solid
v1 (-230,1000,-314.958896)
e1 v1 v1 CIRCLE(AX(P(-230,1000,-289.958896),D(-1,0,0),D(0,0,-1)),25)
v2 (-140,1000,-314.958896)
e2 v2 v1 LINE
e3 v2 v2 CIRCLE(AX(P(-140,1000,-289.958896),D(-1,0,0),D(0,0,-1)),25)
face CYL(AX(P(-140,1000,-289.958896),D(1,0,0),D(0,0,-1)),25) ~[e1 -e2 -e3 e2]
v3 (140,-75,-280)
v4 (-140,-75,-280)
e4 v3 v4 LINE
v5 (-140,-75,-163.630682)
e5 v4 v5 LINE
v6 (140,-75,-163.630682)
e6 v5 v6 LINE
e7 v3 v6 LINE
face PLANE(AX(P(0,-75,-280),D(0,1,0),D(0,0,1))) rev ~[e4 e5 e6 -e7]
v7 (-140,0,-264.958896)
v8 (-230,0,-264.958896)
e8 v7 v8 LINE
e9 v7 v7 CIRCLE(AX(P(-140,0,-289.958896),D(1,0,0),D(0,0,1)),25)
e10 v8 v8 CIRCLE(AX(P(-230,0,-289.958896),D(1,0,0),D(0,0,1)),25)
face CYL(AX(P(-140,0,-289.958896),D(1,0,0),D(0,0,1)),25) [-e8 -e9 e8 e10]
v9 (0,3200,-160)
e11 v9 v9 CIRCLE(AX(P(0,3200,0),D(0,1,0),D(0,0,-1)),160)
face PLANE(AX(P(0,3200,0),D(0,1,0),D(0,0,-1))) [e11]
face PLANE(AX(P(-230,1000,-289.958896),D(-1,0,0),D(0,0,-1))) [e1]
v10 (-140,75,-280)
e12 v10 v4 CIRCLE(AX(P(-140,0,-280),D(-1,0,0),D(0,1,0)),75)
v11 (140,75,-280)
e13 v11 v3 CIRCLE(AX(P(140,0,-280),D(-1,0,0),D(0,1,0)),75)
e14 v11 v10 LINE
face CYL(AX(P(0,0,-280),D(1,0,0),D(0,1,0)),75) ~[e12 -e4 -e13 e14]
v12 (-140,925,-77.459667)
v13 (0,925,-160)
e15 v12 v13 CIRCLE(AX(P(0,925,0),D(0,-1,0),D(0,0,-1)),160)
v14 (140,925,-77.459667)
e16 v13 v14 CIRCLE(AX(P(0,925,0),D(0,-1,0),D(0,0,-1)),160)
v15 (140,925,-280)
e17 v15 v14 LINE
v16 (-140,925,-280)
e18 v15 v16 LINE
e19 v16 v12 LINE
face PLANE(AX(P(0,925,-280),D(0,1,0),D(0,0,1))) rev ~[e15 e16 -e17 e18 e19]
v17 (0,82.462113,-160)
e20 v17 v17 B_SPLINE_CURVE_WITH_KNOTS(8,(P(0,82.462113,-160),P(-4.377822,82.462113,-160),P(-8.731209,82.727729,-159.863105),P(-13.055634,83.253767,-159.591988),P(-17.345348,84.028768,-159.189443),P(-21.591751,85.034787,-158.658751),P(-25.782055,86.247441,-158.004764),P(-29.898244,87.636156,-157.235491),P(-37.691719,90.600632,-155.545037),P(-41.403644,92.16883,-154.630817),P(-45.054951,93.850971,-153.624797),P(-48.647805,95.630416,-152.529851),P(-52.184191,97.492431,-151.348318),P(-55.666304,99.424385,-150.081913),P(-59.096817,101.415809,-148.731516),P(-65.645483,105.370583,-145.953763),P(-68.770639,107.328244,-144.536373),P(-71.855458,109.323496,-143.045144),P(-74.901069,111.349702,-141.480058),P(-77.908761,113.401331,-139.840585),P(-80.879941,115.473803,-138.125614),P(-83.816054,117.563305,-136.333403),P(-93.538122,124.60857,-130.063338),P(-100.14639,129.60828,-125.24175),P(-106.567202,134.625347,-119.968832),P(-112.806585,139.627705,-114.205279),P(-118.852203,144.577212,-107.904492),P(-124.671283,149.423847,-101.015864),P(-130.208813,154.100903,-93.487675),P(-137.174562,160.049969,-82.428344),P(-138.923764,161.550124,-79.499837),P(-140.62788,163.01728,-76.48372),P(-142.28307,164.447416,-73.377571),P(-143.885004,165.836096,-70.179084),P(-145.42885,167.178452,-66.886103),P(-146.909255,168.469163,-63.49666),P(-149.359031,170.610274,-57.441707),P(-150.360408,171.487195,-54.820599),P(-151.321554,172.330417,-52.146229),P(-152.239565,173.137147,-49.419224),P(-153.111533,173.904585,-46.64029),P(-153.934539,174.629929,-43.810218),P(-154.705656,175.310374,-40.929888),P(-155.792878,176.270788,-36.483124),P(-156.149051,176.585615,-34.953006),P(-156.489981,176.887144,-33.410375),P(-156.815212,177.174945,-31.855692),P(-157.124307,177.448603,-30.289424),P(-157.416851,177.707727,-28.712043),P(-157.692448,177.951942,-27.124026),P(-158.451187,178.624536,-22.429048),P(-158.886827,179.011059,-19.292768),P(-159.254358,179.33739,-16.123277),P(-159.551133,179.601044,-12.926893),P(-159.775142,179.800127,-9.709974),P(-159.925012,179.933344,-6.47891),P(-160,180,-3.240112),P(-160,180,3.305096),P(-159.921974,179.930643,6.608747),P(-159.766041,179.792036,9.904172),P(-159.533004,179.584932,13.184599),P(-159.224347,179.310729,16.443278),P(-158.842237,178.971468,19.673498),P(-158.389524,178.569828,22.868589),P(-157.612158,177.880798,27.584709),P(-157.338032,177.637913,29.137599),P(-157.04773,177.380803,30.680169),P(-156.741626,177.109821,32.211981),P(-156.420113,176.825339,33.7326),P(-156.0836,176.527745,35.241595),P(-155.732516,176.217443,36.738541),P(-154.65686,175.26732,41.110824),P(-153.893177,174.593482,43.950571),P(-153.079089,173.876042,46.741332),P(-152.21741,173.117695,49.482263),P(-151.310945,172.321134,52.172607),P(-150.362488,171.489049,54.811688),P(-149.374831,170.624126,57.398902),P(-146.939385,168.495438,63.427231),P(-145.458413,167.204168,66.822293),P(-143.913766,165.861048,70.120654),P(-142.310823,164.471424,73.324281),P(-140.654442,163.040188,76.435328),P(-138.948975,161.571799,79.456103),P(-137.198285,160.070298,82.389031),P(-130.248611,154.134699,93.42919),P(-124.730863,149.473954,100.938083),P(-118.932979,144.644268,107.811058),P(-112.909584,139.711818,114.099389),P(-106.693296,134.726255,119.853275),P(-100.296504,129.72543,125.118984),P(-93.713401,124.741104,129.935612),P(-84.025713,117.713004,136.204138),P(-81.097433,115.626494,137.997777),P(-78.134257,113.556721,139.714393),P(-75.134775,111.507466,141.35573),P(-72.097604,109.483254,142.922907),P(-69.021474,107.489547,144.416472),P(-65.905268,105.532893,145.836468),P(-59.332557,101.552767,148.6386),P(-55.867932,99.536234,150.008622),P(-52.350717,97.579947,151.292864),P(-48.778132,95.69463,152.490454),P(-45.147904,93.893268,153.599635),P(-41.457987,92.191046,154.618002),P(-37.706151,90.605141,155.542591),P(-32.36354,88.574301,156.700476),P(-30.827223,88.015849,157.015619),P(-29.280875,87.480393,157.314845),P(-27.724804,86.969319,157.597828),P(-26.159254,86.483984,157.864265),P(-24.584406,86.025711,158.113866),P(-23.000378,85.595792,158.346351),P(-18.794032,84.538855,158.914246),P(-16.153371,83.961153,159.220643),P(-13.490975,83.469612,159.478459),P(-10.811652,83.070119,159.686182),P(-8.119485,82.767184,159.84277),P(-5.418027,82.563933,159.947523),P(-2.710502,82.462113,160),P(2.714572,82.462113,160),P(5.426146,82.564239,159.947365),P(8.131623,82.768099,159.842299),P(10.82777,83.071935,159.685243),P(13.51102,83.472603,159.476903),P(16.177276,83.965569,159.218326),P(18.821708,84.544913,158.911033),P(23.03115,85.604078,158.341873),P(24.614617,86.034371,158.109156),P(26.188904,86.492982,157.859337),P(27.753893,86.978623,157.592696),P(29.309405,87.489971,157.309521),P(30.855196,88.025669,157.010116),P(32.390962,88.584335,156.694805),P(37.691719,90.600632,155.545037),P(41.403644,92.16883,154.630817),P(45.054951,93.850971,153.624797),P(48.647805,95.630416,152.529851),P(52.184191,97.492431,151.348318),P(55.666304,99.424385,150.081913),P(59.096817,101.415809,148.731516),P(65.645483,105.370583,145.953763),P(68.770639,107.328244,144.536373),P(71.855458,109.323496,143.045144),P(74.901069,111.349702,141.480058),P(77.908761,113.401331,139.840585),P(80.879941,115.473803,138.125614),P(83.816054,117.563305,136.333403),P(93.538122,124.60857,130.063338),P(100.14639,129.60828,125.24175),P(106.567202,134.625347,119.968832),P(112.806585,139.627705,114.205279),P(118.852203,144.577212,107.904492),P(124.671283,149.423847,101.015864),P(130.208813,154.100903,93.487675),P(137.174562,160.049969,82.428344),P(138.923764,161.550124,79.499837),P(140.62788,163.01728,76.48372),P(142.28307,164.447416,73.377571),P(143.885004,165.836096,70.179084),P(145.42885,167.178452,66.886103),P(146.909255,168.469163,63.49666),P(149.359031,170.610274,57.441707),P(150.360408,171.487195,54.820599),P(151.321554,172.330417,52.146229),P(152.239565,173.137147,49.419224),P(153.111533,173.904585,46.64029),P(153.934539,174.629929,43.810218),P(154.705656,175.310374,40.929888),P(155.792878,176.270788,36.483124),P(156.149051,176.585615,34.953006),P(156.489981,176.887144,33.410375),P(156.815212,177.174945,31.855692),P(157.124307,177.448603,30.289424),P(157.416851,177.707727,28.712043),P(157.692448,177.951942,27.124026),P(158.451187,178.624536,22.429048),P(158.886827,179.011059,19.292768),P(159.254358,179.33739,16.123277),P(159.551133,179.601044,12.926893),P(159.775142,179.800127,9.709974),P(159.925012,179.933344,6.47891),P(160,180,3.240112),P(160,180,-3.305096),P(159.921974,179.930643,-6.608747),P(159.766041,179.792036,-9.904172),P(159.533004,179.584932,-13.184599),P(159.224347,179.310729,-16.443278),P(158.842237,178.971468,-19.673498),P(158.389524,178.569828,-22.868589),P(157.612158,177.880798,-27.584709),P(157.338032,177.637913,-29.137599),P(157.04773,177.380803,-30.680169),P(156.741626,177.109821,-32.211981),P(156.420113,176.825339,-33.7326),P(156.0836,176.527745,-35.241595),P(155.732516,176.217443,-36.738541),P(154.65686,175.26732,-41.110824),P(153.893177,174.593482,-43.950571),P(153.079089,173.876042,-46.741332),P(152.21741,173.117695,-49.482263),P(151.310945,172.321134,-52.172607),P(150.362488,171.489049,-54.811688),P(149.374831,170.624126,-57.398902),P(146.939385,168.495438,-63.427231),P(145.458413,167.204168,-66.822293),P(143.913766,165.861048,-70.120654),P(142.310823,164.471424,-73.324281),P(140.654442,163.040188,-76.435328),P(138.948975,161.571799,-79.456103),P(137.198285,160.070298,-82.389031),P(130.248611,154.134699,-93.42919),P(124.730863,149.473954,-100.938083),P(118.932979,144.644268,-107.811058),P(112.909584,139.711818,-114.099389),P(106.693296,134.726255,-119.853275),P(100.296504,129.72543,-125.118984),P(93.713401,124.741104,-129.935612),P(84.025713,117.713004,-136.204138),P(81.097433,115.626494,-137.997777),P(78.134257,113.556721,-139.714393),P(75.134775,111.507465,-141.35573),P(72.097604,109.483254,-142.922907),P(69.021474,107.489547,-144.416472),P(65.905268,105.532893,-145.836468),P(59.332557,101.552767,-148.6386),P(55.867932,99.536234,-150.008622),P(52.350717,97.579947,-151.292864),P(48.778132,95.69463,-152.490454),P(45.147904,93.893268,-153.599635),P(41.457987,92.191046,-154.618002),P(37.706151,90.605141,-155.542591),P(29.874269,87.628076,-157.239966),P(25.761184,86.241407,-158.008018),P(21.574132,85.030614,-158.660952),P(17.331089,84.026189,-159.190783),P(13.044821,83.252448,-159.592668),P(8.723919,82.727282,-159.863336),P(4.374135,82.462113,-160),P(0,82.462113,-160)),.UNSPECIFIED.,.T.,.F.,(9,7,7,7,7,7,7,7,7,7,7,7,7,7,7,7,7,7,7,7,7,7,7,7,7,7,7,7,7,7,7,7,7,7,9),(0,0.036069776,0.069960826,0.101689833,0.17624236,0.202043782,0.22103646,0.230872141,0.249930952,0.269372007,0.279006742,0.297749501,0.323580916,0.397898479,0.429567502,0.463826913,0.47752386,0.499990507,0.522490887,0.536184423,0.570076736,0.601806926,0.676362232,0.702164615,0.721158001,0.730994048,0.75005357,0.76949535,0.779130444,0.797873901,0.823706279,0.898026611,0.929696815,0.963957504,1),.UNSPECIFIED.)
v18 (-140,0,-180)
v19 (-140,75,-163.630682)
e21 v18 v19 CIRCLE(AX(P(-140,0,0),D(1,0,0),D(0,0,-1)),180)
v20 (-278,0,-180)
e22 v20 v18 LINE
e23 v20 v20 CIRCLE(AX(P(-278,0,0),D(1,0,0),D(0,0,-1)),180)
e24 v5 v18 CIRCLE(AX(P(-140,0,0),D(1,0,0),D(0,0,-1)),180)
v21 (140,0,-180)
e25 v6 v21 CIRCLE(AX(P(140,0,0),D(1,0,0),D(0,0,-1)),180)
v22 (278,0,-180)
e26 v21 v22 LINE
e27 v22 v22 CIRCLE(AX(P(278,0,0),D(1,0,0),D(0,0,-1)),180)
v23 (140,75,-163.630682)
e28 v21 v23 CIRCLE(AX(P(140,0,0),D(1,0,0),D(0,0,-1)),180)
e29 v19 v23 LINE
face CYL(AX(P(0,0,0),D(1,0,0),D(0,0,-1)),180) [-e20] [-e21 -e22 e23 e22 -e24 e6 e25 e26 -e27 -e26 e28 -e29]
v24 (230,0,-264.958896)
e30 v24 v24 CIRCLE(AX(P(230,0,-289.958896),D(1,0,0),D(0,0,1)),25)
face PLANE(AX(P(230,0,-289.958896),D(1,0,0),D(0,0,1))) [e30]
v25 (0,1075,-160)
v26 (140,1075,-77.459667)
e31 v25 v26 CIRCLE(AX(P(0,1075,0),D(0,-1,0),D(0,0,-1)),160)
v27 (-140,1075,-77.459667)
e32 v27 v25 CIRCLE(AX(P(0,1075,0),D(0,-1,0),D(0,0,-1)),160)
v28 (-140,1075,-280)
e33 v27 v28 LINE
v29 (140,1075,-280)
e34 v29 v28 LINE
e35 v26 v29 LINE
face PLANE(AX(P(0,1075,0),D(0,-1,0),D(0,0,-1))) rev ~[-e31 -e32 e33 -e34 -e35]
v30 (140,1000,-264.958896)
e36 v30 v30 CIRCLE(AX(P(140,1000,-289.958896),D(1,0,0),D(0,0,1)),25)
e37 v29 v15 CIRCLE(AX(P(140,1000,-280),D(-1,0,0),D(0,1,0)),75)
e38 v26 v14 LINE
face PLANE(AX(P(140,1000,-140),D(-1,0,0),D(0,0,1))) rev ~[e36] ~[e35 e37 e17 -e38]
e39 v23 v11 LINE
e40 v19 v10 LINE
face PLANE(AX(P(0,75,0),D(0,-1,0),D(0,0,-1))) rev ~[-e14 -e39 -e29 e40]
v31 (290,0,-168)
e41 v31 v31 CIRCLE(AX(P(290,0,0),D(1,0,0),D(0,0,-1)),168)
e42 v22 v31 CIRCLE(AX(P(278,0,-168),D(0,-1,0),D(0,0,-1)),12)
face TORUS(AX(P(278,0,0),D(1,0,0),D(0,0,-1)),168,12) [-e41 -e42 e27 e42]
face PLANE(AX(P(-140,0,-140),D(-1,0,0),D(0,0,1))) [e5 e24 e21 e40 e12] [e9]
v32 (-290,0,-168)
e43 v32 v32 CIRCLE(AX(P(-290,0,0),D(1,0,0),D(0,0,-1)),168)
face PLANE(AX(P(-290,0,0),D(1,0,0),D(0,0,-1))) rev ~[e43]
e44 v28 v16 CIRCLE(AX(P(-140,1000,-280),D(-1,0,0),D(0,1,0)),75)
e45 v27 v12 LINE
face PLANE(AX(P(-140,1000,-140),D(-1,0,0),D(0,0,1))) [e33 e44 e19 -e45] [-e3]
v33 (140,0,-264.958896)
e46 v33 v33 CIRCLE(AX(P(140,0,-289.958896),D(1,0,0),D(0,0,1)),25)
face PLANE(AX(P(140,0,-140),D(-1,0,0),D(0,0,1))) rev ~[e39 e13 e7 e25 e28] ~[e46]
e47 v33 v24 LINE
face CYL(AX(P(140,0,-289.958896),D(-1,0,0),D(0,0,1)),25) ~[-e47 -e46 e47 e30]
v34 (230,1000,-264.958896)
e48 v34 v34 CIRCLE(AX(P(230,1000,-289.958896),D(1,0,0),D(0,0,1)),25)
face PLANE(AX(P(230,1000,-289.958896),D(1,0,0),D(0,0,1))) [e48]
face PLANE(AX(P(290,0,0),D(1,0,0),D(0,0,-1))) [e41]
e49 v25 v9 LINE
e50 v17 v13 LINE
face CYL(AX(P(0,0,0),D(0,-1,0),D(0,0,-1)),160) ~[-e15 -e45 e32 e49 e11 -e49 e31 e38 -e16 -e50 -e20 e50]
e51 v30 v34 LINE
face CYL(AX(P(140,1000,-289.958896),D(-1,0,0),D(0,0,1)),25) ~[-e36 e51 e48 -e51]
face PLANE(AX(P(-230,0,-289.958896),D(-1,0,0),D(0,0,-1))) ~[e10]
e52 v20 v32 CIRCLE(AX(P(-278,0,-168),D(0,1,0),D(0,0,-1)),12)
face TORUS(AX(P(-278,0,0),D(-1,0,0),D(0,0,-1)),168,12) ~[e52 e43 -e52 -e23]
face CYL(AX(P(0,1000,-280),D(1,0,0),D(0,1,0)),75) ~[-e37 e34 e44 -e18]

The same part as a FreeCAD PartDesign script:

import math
import FreeCAD as App
import Part
import Sketcher

V = App.Vector
Q = App.Units.Quantity


def edges_at(feature, points):
    """Names of the edges that pass closest to the given points."""
    edges = feature.Shape.Edges
    near = lambda p: min(range(len(edges)), key=lambda i: edges[i].distToShape(Part.Vertex(*p))[0])
    return sorted({f"Edge{near(p) + 1}" for p in points})

doc = App.newDocument("Part")
body = doc.addObject("PartDesign::Body", "Body")

# Sketch on YZ plane
sketch1 = body.newObject("Sketcher::SketchObject", "Sketch")
sketch1.AttachmentSupport = (doc.getObject("YZ_Plane"), [""])
sketch1.MapMode = "FlatFace"
sketch1.addGeometry(Part.Circle(V(0, 0, 0), V(0, 0, 1), 180), False)
sketch1.addConstraint([
    Sketcher.Constraint("Coincident", 0, 3, -1, 1),
    Sketcher.Constraint("Diameter", 0, Q("360 mm")),
])
pad1 = body.newObject("PartDesign::Pad", "Pad")
pad1.Profile = sketch1
pad1.Length = 580
pad1.Midplane = True
doc.recompute()

fillet = body.newObject("PartDesign::Fillet", "Fillet")
fillet.Base = (pad1, edges_at(pad1, [(-290, 0, 180), (290, 0, 180)]))
fillet.Radius = 12

# Sketch on XZ plane
sketch2 = body.newObject("Sketcher::SketchObject", "Sketch001")
sketch2.AttachmentSupport = (doc.getObject("XZ_Plane"), [""])
sketch2.MapMode = "FlatFace"
sketch2.addGeometry(Part.Circle(V(0, 0, 0), V(0, 0, 1), 160), False)
sketch2.addConstraint([
    Sketcher.Constraint("Coincident", 0, 3, -1, 1),
    Sketcher.Constraint("Diameter", 0, Q("320 mm")),
])
pad2 = body.newObject("PartDesign::Pad", "Pad001")
pad2.Profile = sketch2
pad2.Length = 3200
pad2.Reversed = True

# Sketch on YZ plane
sketch3 = body.newObject("Sketcher::SketchObject", "Sketch002")
sketch3.AttachmentSupport = (doc.getObject("YZ_Plane"), [""])
sketch3.MapMode = "FlatFace"
sketch3.addGeometry([
    Part.LineSegment(V(75, -280, 0), V(75, 0, 0)),
    Part.ArcOfCircle(Part.Circle(V(0, 0, 0), V(0, 0, 1), 75), math.radians(0), math.radians(180)),
    Part.LineSegment(V(-75, 0, 0), V(-75, -280, 0)),
    Part.ArcOfCircle(Part.Circle(V(0, -280, 0), V(0, 0, 1), 75), math.radians(180), math.radians(360)),
], False)
sketch3.addConstraint([
    Sketcher.Constraint("Tangent", 0, 2, 1, 1),
    Sketcher.Constraint("Tangent", 1, 2, 2, 1),
    Sketcher.Constraint("Tangent", 2, 2, 3, 1),
    Sketcher.Constraint("Tangent", 3, 2, 0, 1),
    Sketcher.Constraint("Vertical", 0),
    Sketcher.Constraint("Vertical", 2),
    Sketcher.Constraint("Coincident", 1, 3, -1, 1),
    Sketcher.Constraint("Radius", 1, Q("75 mm")),
    Sketcher.Constraint("DistanceY", 0, 1, 0, 2, Q("280 mm")),
])
pad3 = body.newObject("PartDesign::Pad", "Pad002")
pad3.Profile = sketch3
pad3.Length = 280
pad3.Midplane = True

# Sketch on YZ plane
sketch4 = body.newObject("Sketcher::SketchObject", "Sketch003")
sketch4.AttachmentSupport = (doc.getObject("YZ_Plane"), [""])
sketch4.MapMode = "FlatFace"
sketch4.AttachmentOffset = App.Placement(V(0, 0, 140), App.Rotation())
sketch4.addGeometry(Part.Circle(V(0, -290, 0), V(0, 0, 1), 25), False)
sketch4.addConstraint([
    Sketcher.Constraint("PointOnObject", 0, 3, -2),
    Sketcher.Constraint("Diameter", 0, Q("50 mm")),
    Sketcher.Constraint("DistanceY", 0, 3, -1, 1, Q("289.958896 mm")),
])
pad4 = body.newObject("PartDesign::Pad", "Pad003")
pad4.Profile = sketch4
pad4.Length = 90
doc.recompute()

mirrored = body.newObject("PartDesign::Mirrored", "Mirrored")
mirrored.Originals = [pad4]
mirrored.MirrorPlane = (doc.getObject("YZ_Plane"), [""])
body.Tip = mirrored
doc.recompute()

linearpattern = body.newObject("PartDesign::LinearPattern", "LinearPattern")
linearpattern.Originals = [pad3, pad4]
linearpattern.Direction = (doc.getObject("Y_Axis"), [""])
linearpattern.Mode = "offset"
linearpattern.Offset = 1000
linearpattern.Occurrences = 2
body.Tip = linearpattern

# Sketch on YZ plane
sketch5 = body.newObject("Sketcher::SketchObject", "Sketch004")
sketch5.AttachmentSupport = (doc.getObject("YZ_Plane"), [""])
sketch5.MapMode = "FlatFace"
sketch5.AttachmentOffset = App.Placement(V(0, 0, -140), App.Rotation())
sketch5.addGeometry(Part.Circle(V(1000, -290, 0), V(0, 0, 1), 25), False)
sketch5.addConstraint([
    Sketcher.Constraint("Diameter", 0, Q("50 mm")),
    Sketcher.Constraint("DistanceX", -1, 1, 0, 3, Q("1000 mm")),
    Sketcher.Constraint("DistanceY", 0, 3, -1, 1, Q("289.958896 mm")),
])
pad5 = body.newObject("PartDesign::Pad", "Pad004")
pad5.Profile = sketch5
pad5.Length = 90
pad5.Reversed = True

doc.recompute()
